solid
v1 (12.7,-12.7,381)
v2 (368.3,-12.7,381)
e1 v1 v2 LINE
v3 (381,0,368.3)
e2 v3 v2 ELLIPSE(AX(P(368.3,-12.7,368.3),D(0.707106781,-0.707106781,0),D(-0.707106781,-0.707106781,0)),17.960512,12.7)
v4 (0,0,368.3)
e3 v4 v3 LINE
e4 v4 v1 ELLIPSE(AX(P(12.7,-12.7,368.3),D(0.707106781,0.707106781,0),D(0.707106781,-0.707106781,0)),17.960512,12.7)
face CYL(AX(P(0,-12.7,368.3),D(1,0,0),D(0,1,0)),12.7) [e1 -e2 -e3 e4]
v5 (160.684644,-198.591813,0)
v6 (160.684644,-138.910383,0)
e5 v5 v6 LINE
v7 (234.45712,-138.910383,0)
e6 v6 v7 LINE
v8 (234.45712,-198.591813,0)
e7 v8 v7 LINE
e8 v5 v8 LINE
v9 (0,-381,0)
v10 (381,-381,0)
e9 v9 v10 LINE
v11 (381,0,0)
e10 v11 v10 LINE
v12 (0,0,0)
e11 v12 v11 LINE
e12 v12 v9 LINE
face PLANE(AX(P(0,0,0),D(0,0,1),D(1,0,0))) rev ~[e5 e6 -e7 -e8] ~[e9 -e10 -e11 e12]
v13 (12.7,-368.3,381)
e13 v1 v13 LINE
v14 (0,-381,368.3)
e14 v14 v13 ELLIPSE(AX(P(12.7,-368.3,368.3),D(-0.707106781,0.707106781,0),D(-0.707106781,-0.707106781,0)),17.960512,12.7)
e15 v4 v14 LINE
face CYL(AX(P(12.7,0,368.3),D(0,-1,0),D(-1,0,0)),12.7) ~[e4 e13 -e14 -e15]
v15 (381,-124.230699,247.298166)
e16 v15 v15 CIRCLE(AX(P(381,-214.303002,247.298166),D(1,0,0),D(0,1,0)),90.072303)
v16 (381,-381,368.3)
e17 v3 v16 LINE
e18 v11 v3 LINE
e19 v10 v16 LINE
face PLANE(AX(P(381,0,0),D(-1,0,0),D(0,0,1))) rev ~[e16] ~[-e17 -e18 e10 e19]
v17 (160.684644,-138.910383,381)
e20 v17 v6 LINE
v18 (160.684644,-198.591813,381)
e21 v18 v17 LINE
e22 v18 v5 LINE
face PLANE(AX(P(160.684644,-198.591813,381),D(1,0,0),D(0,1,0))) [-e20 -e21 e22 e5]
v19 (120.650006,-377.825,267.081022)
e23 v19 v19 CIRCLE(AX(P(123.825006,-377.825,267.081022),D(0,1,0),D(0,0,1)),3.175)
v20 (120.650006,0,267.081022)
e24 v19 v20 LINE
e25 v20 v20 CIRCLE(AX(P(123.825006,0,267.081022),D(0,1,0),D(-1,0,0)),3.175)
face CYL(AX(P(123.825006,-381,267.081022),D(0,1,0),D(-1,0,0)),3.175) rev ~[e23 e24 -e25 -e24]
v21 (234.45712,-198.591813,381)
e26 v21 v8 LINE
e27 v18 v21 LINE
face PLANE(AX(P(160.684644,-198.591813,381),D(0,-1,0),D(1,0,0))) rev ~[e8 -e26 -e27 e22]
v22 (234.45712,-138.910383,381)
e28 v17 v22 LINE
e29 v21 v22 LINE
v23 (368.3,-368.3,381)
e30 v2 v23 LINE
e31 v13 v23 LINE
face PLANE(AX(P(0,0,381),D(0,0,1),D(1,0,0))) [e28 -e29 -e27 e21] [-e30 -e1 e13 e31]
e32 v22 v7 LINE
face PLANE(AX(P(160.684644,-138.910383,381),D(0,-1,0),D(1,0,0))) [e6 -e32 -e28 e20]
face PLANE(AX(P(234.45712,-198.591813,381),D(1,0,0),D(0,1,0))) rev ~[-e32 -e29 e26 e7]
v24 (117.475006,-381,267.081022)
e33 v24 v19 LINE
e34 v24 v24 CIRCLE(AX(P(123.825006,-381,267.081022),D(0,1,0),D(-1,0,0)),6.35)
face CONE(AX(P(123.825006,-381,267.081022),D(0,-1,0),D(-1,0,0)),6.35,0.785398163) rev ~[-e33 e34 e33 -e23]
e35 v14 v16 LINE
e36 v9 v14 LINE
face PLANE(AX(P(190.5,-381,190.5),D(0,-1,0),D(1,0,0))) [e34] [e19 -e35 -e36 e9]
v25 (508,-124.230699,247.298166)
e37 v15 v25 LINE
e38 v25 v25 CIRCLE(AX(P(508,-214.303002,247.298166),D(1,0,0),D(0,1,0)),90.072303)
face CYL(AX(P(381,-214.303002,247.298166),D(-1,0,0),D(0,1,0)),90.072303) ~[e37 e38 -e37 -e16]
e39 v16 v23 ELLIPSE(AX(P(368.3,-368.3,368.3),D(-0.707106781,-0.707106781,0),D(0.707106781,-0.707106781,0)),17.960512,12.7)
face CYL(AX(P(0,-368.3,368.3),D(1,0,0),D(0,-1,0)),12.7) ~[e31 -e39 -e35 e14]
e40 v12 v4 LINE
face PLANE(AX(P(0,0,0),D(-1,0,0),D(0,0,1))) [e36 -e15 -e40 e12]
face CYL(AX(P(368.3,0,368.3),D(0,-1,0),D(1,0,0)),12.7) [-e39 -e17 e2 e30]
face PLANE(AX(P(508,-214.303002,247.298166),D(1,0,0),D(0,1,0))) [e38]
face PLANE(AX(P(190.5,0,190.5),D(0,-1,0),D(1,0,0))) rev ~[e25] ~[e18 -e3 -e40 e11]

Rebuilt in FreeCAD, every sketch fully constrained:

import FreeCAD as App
import Part
import Sketcher

V = App.Vector
Q = App.Units.Quantity


def edges_at(feature, points):
    """Names of the edges that pass closest to the given points."""
    edges = feature.Shape.Edges
    near = lambda p: min(range(len(edges)), key=lambda i: edges[i].distToShape(Part.Vertex(*p))[0])
    return sorted({f"Edge{near(p) + 1}" for p in points})

doc = App.newDocument("Part")
body = doc.addObject("PartDesign::Body", "Body")

sketch1 = doc.addObject("Sketcher::SketchObject", "Sketch")
body.addObject(sketch1)
sketch1.AttachmentSupport = (doc.XZ_Plane, [""])
sketch1.MapMode = "FlatFace"
sketch1.addGeometry([
    Part.LineSegment(V(0, 381, 0), V(0, 0, 0)),
    Part.LineSegment(V(0, 0, 0), V(381, 0, 0)),
    Part.LineSegment(V(381, 0, 0), V(381, 381, 0)),
    Part.LineSegment(V(381, 381, 0), V(0, 381, 0)),
], False)
sketch1.addConstraint([
    Sketcher.Constraint("Coincident", 0, 2, 1, 1),
    Sketcher.Constraint("Coincident", 1, 2, 2, 1),
    Sketcher.Constraint("Coincident", 2, 2, 3, 1),
    Sketcher.Constraint("Coincident", 3, 2, 0, 1),
    Sketcher.Constraint("Vertical", 0),
    Sketcher.Constraint("Horizontal", 1),
    Sketcher.Constraint("Vertical", 2),
    Sketcher.Constraint("Horizontal", 3),
    Sketcher.Constraint("Coincident", 0, 2, -1, 1),
    Sketcher.Constraint("Equal", 3, 0),
    Sketcher.Constraint("DistanceX", 1, 1, 1, 2, Q("15 in")),
])
pad1 = doc.addObject("PartDesign::Pad", "Pad")
body.addObject(pad1)
pad1.Profile = sketch1
pad1.Length = Q("15 in")

sketch2 = doc.addObject("Sketcher::SketchObject", "Sketch001")
body.addObject(sketch2)
sketch2.AttachmentSupport = (doc.XZ_Plane, [""])
sketch2.MapMode = "FlatFace"
sketch2.AttachmentOffset = App.Placement(V(0, 0, 15 * 25.4), App.Rotation())
sketch2.addGeometry(Part.Circle(V(123.8, 267.1, 0), V(0, 0, 1), 3.2), False)
sketch2.addConstraint([
    Sketcher.Constraint("Diameter", 0, Q("0.25 in")),
    Sketcher.Constraint("DistanceY", -1, 1, 0, 3, 267.081022),
    Sketcher.Constraint("DistanceX", -1, 1, 0, 3, 123.825006),
])
doc.recompute()
hole = doc.addObject("PartDesign::Hole", "Hole")
body.addObject(hole)
hole.Profile = sketch2
hole.ThreadType = "None"
hole.Diameter = Q("0.25 in")
hole.DepthType = "ThroughAll"
hole.HoleCutType = "Countersink"
hole.HoleCutDiameter = Q("0.5 in")
hole.HoleCutCountersinkAngle = 90
doc.recompute()

fillet = doc.addObject("PartDesign::Fillet", "Fillet")
body.addObject(fillet)
fillet.Base = (hole, edges_at(hole, [
    (381, -190.5, 381),
    (0, -190.5, 381),
    (190.5, 0, 381),
    (190.5, -381, 381),
]))
fillet.Radius = Q("0.5 in")

sketch3 = doc.addObject("Sketcher::SketchObject", "Sketch002")
body.addObject(sketch3)
sketch3.AttachmentSupport = (doc.YZ_Plane, [""])
sketch3.MapMode = "FlatFace"
sketch3.AttachmentOffset = App.Placement(V(0, 0, 15 * 25.4), App.Rotation())
sketch3.addGeometry(Part.Circle(V(-214, 247, 0), V(0, 0, 1), 90), False)
sketch3.addConstraint([
    Sketcher.Constraint("Diameter", 0, 180.144606),
    Sketcher.Constraint("DistanceX", 0, 3, -1, 1, 214.303002),
    Sketcher.Constraint("DistanceY", -1, 1, 0, 3, 247.298166),
])
pad2 = doc.addObject("PartDesign::Pad", "Pad001")
body.addObject(pad2)
pad2.Profile = sketch3
pad2.Length = Q("5 in")

sketch4 = doc.addObject("Sketcher::SketchObject", "Sketch003")
body.addObject(sketch4)
sketch4.AttachmentSupport = (doc.XY_Plane, [""])
sketch4.MapMode = "FlatFace"
sketch4.AttachmentOffset = App.Placement(V(0, 0, 15 * 25.4), App.Rotation())
sketch4.addGeometry([
    Part.LineSegment(V(161, -139, 0), V(161, -199, 0)),
    Part.LineSegment(V(161, -199, 0), V(234, -199, 0)),
    Part.LineSegment(V(234, -199, 0), V(234, -139, 0)),
    Part.LineSegment(V(234, -139, 0), V(161, -139, 0)),
], False)
sketch4.addConstraint([
    Sketcher.Constraint("Coincident", 0, 2, 1, 1),
    Sketcher.Constraint("Coincident", 1, 2, 2, 1),
    Sketcher.Constraint("Coincident", 2, 2, 3, 1),
    Sketcher.Constraint("Coincident", 3, 2, 0, 1),
    Sketcher.Constraint("Vertical", 0),
    Sketcher.Constraint("Horizontal", 1),
    Sketcher.Constraint("Vertical", 2),
    Sketcher.Constraint("Horizontal", 3),
    Sketcher.Constraint("DistanceY", 0, 2, 0, 1, 59.68143),
    Sketcher.Constraint("DistanceX", 1, 1, 1, 2, 73.772475),
    Sketcher.Constraint("DistanceX", -1, 1, 1, 2, 234.45712),
    Sketcher.Constraint("DistanceY", 0, 2, -1, 1, 198.591813),
])
pocket1 = doc.addObject("PartDesign::Pocket", "Pocket")
body.addObject(pocket1)
pocket1.Profile = sketch4
pocket1.Length = Q("20 in")

doc.recompute()
